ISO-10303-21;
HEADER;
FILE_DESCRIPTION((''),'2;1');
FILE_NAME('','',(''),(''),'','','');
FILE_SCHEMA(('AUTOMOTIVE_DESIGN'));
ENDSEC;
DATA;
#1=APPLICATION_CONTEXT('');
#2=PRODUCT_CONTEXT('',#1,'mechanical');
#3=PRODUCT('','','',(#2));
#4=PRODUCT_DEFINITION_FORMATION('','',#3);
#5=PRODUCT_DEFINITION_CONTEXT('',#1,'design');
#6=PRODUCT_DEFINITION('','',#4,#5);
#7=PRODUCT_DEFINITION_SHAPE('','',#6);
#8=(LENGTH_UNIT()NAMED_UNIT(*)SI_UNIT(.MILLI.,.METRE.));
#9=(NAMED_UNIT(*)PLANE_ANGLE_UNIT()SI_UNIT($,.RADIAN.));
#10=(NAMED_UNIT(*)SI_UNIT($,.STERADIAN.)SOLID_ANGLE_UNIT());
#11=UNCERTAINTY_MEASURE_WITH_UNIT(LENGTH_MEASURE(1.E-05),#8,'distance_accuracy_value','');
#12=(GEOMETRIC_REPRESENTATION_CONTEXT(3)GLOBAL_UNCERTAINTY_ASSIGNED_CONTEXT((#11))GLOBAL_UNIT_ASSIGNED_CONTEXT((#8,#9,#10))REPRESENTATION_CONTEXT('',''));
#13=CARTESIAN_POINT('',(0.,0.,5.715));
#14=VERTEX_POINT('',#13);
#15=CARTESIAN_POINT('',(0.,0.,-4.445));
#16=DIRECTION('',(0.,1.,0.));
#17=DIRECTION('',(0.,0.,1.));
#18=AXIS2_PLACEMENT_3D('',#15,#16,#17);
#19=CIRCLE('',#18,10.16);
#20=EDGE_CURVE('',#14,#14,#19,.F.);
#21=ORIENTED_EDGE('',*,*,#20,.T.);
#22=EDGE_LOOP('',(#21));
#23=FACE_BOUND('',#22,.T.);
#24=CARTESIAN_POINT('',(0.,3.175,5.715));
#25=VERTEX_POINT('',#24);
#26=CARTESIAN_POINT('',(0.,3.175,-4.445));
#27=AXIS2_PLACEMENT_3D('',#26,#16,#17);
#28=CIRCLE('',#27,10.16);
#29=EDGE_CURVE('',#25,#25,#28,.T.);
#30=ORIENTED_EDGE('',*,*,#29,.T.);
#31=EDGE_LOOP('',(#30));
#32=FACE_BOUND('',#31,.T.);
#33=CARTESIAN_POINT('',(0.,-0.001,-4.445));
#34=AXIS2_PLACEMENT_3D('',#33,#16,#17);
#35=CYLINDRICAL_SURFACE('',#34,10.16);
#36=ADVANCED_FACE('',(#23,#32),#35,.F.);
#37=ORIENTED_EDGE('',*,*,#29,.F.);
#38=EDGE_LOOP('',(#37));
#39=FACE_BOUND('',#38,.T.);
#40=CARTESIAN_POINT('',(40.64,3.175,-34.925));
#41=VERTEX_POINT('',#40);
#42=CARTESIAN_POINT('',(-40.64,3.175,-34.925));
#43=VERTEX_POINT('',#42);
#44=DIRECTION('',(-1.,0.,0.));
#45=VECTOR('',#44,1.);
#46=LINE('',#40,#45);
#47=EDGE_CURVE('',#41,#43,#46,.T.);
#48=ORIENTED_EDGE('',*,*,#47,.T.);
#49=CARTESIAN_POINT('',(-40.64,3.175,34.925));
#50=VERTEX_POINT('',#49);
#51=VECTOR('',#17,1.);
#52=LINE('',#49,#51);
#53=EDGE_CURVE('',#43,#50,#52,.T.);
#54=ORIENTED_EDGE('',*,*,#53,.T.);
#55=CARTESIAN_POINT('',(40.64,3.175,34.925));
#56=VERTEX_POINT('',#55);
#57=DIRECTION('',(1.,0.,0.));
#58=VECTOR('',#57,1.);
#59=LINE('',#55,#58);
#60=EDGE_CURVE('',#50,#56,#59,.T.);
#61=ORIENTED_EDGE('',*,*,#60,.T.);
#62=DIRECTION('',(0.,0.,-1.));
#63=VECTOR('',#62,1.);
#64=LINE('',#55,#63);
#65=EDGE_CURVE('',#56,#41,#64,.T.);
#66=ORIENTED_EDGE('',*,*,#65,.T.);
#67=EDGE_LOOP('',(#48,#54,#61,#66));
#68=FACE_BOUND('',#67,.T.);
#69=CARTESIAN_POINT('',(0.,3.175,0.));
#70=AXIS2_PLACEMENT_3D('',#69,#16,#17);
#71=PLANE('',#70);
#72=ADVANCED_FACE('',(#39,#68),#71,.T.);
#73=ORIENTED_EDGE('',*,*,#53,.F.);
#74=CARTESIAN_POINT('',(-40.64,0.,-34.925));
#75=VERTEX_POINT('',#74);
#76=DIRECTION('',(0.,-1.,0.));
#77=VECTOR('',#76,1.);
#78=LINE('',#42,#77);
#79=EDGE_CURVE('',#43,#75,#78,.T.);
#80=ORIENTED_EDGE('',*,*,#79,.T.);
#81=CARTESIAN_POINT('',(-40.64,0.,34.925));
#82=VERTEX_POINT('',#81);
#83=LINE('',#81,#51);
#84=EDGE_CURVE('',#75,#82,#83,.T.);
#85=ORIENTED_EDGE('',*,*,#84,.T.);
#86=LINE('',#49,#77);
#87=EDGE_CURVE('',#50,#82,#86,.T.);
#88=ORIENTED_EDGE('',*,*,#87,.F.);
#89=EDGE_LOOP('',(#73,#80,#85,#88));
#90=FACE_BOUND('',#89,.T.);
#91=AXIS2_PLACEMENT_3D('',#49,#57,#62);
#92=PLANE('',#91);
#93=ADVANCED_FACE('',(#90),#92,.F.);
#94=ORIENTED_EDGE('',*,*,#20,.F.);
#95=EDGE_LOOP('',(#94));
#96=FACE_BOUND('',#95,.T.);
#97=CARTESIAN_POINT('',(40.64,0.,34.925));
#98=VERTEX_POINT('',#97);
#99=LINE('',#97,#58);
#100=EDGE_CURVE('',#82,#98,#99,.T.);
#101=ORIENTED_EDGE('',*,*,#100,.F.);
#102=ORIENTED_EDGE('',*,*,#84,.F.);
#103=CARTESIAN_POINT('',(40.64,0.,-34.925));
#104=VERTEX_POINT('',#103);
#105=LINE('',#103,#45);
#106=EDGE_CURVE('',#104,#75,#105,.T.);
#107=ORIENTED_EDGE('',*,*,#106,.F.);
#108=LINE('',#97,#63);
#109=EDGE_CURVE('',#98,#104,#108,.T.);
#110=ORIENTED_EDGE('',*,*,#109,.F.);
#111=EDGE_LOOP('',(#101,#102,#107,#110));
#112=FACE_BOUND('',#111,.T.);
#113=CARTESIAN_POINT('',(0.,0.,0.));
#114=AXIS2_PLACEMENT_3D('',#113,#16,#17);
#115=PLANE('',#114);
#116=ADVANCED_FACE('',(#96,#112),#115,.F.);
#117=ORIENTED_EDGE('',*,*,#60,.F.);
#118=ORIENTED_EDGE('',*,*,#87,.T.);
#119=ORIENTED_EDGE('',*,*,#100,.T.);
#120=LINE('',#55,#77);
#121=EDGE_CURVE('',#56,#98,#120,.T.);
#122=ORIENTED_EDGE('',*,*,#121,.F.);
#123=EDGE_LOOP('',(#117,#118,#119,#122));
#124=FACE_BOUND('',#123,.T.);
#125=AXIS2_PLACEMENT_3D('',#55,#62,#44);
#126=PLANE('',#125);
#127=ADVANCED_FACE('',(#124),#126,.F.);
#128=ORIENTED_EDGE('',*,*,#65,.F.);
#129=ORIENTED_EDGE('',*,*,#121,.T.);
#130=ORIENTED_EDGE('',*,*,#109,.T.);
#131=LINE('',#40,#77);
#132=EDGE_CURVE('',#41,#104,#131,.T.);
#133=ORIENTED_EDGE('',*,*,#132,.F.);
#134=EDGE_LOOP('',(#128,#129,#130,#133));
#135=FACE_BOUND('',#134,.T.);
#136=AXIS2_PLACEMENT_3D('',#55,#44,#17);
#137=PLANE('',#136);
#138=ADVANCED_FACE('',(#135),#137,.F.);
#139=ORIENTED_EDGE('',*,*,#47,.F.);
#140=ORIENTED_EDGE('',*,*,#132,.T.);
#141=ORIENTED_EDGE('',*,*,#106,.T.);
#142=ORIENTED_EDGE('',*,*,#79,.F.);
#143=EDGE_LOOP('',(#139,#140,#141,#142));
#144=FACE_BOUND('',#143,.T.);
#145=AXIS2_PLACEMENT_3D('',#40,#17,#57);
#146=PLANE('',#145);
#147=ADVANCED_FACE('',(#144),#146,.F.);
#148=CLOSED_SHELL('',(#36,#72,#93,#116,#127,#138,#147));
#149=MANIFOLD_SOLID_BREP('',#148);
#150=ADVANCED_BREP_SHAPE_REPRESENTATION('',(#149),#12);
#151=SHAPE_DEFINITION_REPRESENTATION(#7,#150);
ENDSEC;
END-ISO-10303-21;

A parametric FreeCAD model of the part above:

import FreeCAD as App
import Part
import Sketcher
from FreeCAD import Vector
Q = App.Units.Quantity

doc = App.newDocument("Part")
body = doc.addObject("PartDesign::Body", "Body")

# Sketch on XZ plane
sketch1 = body.newObject("Sketcher::SketchObject", "Sketch")
sketch1.AttachmentSupport = (doc.getObject("XZ_Plane"), [""])
sketch1.MapMode = "FlatFace"
sketch1.addGeometry([
    Part.LineSegment(Vector(-41, -35, 0), Vector(-41, 35, 0)),
    Part.LineSegment(Vector(-41, 35, 0), Vector(41, 35, 0)),
    Part.LineSegment(Vector(41, 35, 0), Vector(41, -35, 0)),
    Part.LineSegment(Vector(41, -35, 0), Vector(-41, -35, 0)),
], False)
sketch1.addConstraint([
    Sketcher.Constraint("Coincident", 0, 2, 1, 1),
    Sketcher.Constraint("Coincident", 1, 2, 2, 1),
    Sketcher.Constraint("Coincident", 2, 2, 3, 1),
    Sketcher.Constraint("Coincident", 3, 2, 0, 1),
    Sketcher.Constraint("Vertical", 0),
    Sketcher.Constraint("Horizontal", 1),
    Sketcher.Constraint("Vertical", 2),
    Sketcher.Constraint("Horizontal", 3),
    Sketcher.Constraint("Symmetric", 0, 2, 2, 2, -1, 1),
    Sketcher.Constraint("DistanceX", 1, 1, 1, 2, Q("3.2 in")),
    Sketcher.Constraint("DistanceY", 0, 1, 0, 2, Q("2.75 in")),
])
pad1 = body.newObject("PartDesign::Pad", "Pad")
pad1.Profile = sketch1
pad1.Length = Q("0.125 in")
pad1.Reversed = True

# Sketch on XZ plane
sketch2 = body.newObject("Sketcher::SketchObject", "Sketch001")
sketch2.AttachmentSupport = (doc.getObject("XZ_Plane"), [""])
sketch2.MapMode = "FlatFace"
sketch2.AttachmentOffset = App.Placement(Vector(0, 0, -0.125 * 25.4), App.Rotation())
sketch2.addGeometry(Part.Circle(Vector(0, -4, 0), Vector(0, 0, 1), 10), False)
sketch2.addConstraint([
    Sketcher.Constraint("PointOnObject", 0, 3, -2),
    Sketcher.Constraint("Diameter", 0, Q("0.8 in")),
    Sketcher.Constraint("DistanceY", 0, 3, -1, 1, Q("0.175 in")),
])
pocket1 = body.newObject("PartDesign::Pocket", "Pocket")
pocket1.Profile = sketch2
pocket1.Type = "UpToFirst"
pocket1.Reversed = True

doc.recompute()
